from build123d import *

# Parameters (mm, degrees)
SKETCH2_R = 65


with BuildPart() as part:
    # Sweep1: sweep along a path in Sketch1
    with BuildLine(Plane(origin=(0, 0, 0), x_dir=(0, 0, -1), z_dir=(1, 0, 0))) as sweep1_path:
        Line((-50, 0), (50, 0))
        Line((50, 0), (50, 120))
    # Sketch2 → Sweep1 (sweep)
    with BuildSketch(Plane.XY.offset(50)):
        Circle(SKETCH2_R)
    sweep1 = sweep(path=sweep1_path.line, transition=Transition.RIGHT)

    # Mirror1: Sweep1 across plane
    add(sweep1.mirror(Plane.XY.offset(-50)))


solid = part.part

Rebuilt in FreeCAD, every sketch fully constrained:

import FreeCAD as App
import Part
import Sketcher

V = App.Vector
Q = App.Units.Quantity

doc = App.newDocument("Part")
body = doc.addObject("PartDesign::Body", "Body")

# Sketch on XY plane
sketch1 = body.newObject("Sketcher::SketchObject", "Sketch")
sketch1.AttachmentSupport = (doc.getObject("XY_Plane"), [""])
sketch1.MapMode = "FlatFace"
sketch1.AttachmentOffset = App.Placement(V(0, 0, 50), App.Rotation())
sketch1.addGeometry(Part.Circle(V(0, 0, 0), V(0, 0, 1), 65), False)
sketch1.addConstraint([
    Sketcher.Constraint("Coincident", 0, 3, -1, 1),
    Sketcher.Constraint("Diameter", 0, Q("130 mm")),
])

# Sketch on YZ plane
sketch2 = body.newObject("Sketcher::SketchObject", "Sketch001")
sketch2.AttachmentSupport = (doc.getObject("YZ_Plane"), [""])
sketch2.MapMode = "FlatFace"
sketch2.addGeometry([
    Part.LineSegment(V(0, 50, 0), V(0, -50, 0)),
    Part.LineSegment(V(0, -50, 0), V(120, -50, 0)),
], False)
sketch2.addConstraint([
    Sketcher.Constraint("Coincident", 0, 2, 1, 1),
    Sketcher.Constraint("Vertical", 0),
    Sketcher.Constraint("Horizontal", 1),
    Sketcher.Constraint("Symmetric", 0, 1, 0, 2, -1, 1),
    Sketcher.Constraint("DistanceX", 1, 1, 1, 2, Q("120 mm")),
    Sketcher.Constraint("DistanceY", 0, 2, 0, 1, Q("100 mm")),
])
doc.recompute()

additivepipe = body.newObject("PartDesign::AdditivePipe", "AdditivePipe")
additivepipe.Profile = sketch1
additivepipe.Spine = (sketch2, ["Edge1", "Edge2"])
additivepipe.Transition = "Right corner"
doc.recompute()

datumplane = body.newObject("PartDesign::Plane", "DatumPlane")
datumplane.AttachmentSupport = (doc.getObject("XY_Plane"), [""])
datumplane.MapMode = "FlatFace"
datumplane.AttachmentOffset = App.Placement(V(0, 0, -50), App.Rotation())
mirrored = body.newObject("PartDesign::Mirrored", "Mirrored")
mirrored.Originals = [additivepipe]
mirrored.MirrorPlane = (datumplane, [""])
body.Tip = mirrored

doc.recompute()
